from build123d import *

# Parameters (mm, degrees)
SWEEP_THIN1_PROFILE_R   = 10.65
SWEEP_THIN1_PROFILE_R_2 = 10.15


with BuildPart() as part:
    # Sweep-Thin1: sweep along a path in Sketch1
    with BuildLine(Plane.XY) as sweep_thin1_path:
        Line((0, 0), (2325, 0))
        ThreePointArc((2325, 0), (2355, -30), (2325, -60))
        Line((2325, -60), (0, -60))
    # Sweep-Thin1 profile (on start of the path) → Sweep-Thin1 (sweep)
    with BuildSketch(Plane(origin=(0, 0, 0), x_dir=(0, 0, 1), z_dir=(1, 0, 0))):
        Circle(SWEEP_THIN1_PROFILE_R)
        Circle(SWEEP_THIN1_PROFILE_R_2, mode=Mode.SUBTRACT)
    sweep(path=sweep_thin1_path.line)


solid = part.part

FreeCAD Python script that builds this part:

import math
import FreeCAD as App
import Part
import Sketcher

doc = App.newDocument("Part")
body = doc.addObject("PartDesign::Body", "Body")

sketch1 = body.newObject("Sketcher::SketchObject", "Sketch")
sketch1.AttachmentSupport = (doc.getObject("YZ_Plane"), [""])
sketch1.MapMode = "FlatFace"
sketch1.addGeometry([
    Part.Circle(App.Vector(0, 0, 0), App.Vector(0, 0, 1), 11),
    Part.Circle(App.Vector(0, 0, 0), App.Vector(0, 0, 1), 10),
], False)
sketch1.addConstraint([
    Sketcher.Constraint("Coincident", 0, 3, -1, 1),
    Sketcher.Constraint("Coincident", 1, 3, -1, 1),
    Sketcher.Constraint("Diameter", 0, 21.3),
    Sketcher.Constraint("Diameter", 1, 20.3),
])

sketch2 = body.newObject("Sketcher::SketchObject", "Sketch001")
sketch2.AttachmentSupport = (doc.getObject("XY_Plane"), [""])
sketch2.MapMode = "FlatFace"
sketch2.addGeometry([
    Part.LineSegment(App.Vector(0, 0, 0), App.Vector(2325, 0, 0)),
    Part.ArcOfCircle(Part.Circle(App.Vector(2325, -30, 0), App.Vector(0, 0, 1), 30), math.radians(-90), math.radians(90)),
    Part.LineSegment(App.Vector(2325, -60, 0), App.Vector(0, -60, 0)),
], False)
sketch2.addConstraint([
    Sketcher.Constraint("Tangent", 0, 2, 1, 2),
    Sketcher.Constraint("Tangent", 1, 1, 2, 1),
    Sketcher.Constraint("Horizontal", 0),
    Sketcher.Constraint("Horizontal", 2),
    Sketcher.Constraint("Coincident", 0, 1, -1, 1),
    Sketcher.Constraint("PointOnObject", 2, 2, -2),
    Sketcher.Constraint("Radius", 1, 30.0),
    Sketcher.Constraint("DistanceX", 0, 1, 0, 2, 2325.0),
])
doc.recompute()

additivepipe = body.newObject("PartDesign::AdditivePipe", "AdditivePipe")
additivepipe.Profile = sketch1
additivepipe.Spine = (sketch2, ["Edge1", "Edge2", "Edge3"])

doc.recompute()
